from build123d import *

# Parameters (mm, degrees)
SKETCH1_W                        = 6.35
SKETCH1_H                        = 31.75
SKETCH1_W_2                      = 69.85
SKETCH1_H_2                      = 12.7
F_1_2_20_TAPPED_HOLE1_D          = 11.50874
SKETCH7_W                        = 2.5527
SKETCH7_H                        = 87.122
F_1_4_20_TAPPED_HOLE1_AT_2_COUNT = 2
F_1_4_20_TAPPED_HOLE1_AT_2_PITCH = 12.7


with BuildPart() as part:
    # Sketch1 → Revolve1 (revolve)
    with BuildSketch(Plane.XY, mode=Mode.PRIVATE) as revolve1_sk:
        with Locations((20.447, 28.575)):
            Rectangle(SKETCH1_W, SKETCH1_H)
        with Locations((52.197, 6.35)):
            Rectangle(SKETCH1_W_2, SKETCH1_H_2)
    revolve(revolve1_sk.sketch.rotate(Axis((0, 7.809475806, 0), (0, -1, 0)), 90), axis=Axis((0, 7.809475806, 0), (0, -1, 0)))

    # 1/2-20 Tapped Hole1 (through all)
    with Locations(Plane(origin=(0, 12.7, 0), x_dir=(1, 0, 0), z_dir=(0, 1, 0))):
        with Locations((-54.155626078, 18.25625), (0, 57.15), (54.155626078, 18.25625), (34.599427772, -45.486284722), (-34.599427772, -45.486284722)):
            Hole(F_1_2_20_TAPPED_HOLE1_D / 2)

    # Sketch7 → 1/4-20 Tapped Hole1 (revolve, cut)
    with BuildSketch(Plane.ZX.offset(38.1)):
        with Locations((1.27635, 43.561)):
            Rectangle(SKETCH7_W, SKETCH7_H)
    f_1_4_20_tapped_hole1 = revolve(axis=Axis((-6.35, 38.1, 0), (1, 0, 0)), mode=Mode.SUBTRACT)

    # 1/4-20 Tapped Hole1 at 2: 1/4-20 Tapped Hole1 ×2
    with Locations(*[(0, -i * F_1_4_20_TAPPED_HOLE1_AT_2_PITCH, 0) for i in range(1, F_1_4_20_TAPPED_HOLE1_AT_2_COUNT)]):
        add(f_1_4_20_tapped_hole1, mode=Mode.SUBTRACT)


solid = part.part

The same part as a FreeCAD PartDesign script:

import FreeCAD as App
import Part
import Sketcher
Q = App.Units.Quantity


def add_polygon(sketch, points):
    """Adds a closed chain of lines whose ends are joined by coincident constraints."""
    first, n = sketch.GeometryCount, len(points)
    for a, b in zip(points, points[1:] + points[:1]):
        sketch.addGeometry(Part.LineSegment(App.Vector(*a, 0), App.Vector(*b, 0)), False)
    for i in range(n):
        sketch.addConstraint(Sketcher.Constraint("Coincident", first + i, 2, first + (i + 1) % n, 1))

doc = App.newDocument("Part")
params = doc.addObject("Spreadsheet::Sheet", "Params")
for row, (alias, value) in enumerate([
    ("sketch1_width", "2.5 in"),
    ("sketch1_height", "0.5 in"),
    ("sketch1_width2", "2.75 in"),
    ("sketch1_height2", "1.75 in"),
    ("revolution_angle", "360 deg"),
    ("hole_diameter", "0.4531 in"),
    ("sketch3_width", "3.43 in"),
    ("groove_angle", "360 deg"),
    ("linearpattern_pitch", "0.5 in"),
], start=1):
    params.set(f"A{row}", alias)
    params.set(f"B{row}", "=" + value)
    params.setAlias(f"B{row}", alias)

body = doc.addObject("PartDesign::Body", "Body")

# Sketch on XY plane
sketch1 = body.newObject("Sketcher::SketchObject", "Sketch")
sketch1.AttachmentSupport = (doc.getObject("XY_Plane"), [""])
sketch1.MapMode = "FlatFace"
add_polygon(sketch1, [(17, 44), (17, 0), (87, 0), (87, 13), (24, 13), (24, 44)])  # lines 0-5
sketch1.addConstraint([
    Sketcher.Constraint("Vertical", 0),
    Sketcher.Constraint("Horizontal", 1),
    Sketcher.Constraint("Vertical", 2),
    Sketcher.Constraint("Horizontal", 3),
    Sketcher.Constraint("Vertical", 4),
    Sketcher.Constraint("Horizontal", 5),
    Sketcher.Constraint("PointOnObject", 0, 2, -1),
    Sketcher.Constraint("DistanceX", 3, 2, 3, 1, Q("2.5 in")),
    Sketcher.Constraint("DistanceY", 2, 1, 2, 2, Q("0.5 in")),
    Sketcher.Constraint("DistanceX", 1, 1, 1, 2, Q("2.75 in")),
    Sketcher.Constraint("DistanceY", 0, 2, 0, 1, Q("1.75 in")),
    Sketcher.Constraint("DistanceX", -1, 1, 0, 2, Q("0.68 in")),
])
sketch1.setExpression("Constraints[13]", "Params.sketch1_width")
sketch1.setExpression("Constraints[14]", "Params.sketch1_height")
sketch1.setExpression("Constraints[15]", "Params.sketch1_width2")
sketch1.setExpression("Constraints[16]", "Params.sketch1_height2")
revolution = body.newObject("PartDesign::Revolution", "Revolution")
revolution.Profile = sketch1
revolution.ReferenceAxis = (sketch1, ["V_Axis"])
revolution.setExpression("Angle", "Params.revolution_angle")

# Sketch on XZ plane
sketch2 = body.newObject("Sketcher::SketchObject", "Sketch001")
sketch2.AttachmentSupport = (doc.getObject("XZ_Plane"), [""])
sketch2.MapMode = "FlatFace"
sketch2.AttachmentOffset = App.Placement(App.Vector(0, 0, -0.5 * 25.4), App.Rotation())
sketch2.addGeometry([
    Part.Circle(App.Vector(-54, -18, 0), App.Vector(0, 0, 1), 6),  # 0
    Part.Circle(App.Vector(0, -57, 0), App.Vector(0, 0, 1), 6),  # 1
    Part.Circle(App.Vector(54, -18, 0), App.Vector(0, 0, 1), 6),  # 2
    Part.Circle(App.Vector(35, 45, 0), App.Vector(0, 0, 1), 6),  # 3
    Part.Circle(App.Vector(-35, 45, 0), App.Vector(0, 0, 1), 6),  # 4
], False)
sketch2.addConstraint([
    Sketcher.Constraint("Equal", 0, 1),
    Sketcher.Constraint("Equal", 1, 2),
    Sketcher.Constraint("Equal", 2, 3),
    Sketcher.Constraint("Equal", 3, 4),
    Sketcher.Constraint("Symmetric", 0, 3, 2, 3, -2),
    Sketcher.Constraint("Symmetric", 3, 3, 4, 3, -2),
    Sketcher.Constraint("PointOnObject", 1, 3, -2),
    Sketcher.Constraint("Diameter", 0, Q("0.4531 in")),
    Sketcher.Constraint("DistanceY", 1, 3, -1, 1, Q("2.25 in")),
    Sketcher.Constraint("DistanceY", 0, 3, -1, 1, Q("0.71875 in")),
    Sketcher.Constraint("DistanceX", 3, 3, 2, 3, Q("19.556198 mm")),
    Sketcher.Constraint("DistanceX", 0, 3, -1, 1, Q("54.155626 mm")),
    Sketcher.Constraint("DistanceY", -1, 1, 3, 3, Q("45.486285 mm")),
])
doc.recompute()
hole = body.newObject("PartDesign::Hole", "Hole")
hole.Profile = sketch2
hole.ThreadType = "None"
hole.setExpression("Diameter", "Params.hole_diameter")
hole.DepthType = "ThroughAll"
hole.Reversed = True

# Sketch on XZ plane
sketch3 = body.newObject("Sketcher::SketchObject", "Sketch002")
sketch3.AttachmentSupport = (doc.getObject("XZ_Plane"), [""])
sketch3.MapMode = "FlatFace"
sketch3.AttachmentOffset = App.Placement(App.Vector(0, 0, -1.5 * 25.4), App.Rotation())
add_polygon(sketch3, [(87.1, 0), (0, 0), (0, 2.6), (87.1, 2.6)])  # lines 0-3
sketch3.addConstraint([
    Sketcher.Constraint("Horizontal", 0),
    Sketcher.Constraint("Vertical", 1),
    Sketcher.Constraint("Horizontal", 2),
    Sketcher.Constraint("Vertical", 3),
    Sketcher.Constraint("Coincident", 0, 2, -1, 1),
    Sketcher.Constraint("DistanceX", 0, 2, 0, 1, Q("3.43 in")),
    Sketcher.Constraint("DistanceY", 1, 1, 1, 2, Q("0.1005 in")),
])
sketch3.setExpression("Constraints[9]", "Params.sketch3_width")
groove = body.newObject("PartDesign::Groove", "Groove")
groove.Profile = sketch3
groove.ReferenceAxis = (sketch3, ["H_Axis"])
groove.setExpression("Angle", "Params.groove_angle")
doc.recompute()

linearpattern = body.newObject("PartDesign::LinearPattern", "LinearPattern")
linearpattern.Originals = [groove]
linearpattern.Direction = (doc.getObject("Y_Axis"), [""])
linearpattern.Mode = "offset"
linearpattern.setExpression("Offset", "Params.linearpattern_pitch")
linearpattern.Occurrences = 2
linearpattern.Reversed = True
body.Tip = linearpattern

doc.recompute()
